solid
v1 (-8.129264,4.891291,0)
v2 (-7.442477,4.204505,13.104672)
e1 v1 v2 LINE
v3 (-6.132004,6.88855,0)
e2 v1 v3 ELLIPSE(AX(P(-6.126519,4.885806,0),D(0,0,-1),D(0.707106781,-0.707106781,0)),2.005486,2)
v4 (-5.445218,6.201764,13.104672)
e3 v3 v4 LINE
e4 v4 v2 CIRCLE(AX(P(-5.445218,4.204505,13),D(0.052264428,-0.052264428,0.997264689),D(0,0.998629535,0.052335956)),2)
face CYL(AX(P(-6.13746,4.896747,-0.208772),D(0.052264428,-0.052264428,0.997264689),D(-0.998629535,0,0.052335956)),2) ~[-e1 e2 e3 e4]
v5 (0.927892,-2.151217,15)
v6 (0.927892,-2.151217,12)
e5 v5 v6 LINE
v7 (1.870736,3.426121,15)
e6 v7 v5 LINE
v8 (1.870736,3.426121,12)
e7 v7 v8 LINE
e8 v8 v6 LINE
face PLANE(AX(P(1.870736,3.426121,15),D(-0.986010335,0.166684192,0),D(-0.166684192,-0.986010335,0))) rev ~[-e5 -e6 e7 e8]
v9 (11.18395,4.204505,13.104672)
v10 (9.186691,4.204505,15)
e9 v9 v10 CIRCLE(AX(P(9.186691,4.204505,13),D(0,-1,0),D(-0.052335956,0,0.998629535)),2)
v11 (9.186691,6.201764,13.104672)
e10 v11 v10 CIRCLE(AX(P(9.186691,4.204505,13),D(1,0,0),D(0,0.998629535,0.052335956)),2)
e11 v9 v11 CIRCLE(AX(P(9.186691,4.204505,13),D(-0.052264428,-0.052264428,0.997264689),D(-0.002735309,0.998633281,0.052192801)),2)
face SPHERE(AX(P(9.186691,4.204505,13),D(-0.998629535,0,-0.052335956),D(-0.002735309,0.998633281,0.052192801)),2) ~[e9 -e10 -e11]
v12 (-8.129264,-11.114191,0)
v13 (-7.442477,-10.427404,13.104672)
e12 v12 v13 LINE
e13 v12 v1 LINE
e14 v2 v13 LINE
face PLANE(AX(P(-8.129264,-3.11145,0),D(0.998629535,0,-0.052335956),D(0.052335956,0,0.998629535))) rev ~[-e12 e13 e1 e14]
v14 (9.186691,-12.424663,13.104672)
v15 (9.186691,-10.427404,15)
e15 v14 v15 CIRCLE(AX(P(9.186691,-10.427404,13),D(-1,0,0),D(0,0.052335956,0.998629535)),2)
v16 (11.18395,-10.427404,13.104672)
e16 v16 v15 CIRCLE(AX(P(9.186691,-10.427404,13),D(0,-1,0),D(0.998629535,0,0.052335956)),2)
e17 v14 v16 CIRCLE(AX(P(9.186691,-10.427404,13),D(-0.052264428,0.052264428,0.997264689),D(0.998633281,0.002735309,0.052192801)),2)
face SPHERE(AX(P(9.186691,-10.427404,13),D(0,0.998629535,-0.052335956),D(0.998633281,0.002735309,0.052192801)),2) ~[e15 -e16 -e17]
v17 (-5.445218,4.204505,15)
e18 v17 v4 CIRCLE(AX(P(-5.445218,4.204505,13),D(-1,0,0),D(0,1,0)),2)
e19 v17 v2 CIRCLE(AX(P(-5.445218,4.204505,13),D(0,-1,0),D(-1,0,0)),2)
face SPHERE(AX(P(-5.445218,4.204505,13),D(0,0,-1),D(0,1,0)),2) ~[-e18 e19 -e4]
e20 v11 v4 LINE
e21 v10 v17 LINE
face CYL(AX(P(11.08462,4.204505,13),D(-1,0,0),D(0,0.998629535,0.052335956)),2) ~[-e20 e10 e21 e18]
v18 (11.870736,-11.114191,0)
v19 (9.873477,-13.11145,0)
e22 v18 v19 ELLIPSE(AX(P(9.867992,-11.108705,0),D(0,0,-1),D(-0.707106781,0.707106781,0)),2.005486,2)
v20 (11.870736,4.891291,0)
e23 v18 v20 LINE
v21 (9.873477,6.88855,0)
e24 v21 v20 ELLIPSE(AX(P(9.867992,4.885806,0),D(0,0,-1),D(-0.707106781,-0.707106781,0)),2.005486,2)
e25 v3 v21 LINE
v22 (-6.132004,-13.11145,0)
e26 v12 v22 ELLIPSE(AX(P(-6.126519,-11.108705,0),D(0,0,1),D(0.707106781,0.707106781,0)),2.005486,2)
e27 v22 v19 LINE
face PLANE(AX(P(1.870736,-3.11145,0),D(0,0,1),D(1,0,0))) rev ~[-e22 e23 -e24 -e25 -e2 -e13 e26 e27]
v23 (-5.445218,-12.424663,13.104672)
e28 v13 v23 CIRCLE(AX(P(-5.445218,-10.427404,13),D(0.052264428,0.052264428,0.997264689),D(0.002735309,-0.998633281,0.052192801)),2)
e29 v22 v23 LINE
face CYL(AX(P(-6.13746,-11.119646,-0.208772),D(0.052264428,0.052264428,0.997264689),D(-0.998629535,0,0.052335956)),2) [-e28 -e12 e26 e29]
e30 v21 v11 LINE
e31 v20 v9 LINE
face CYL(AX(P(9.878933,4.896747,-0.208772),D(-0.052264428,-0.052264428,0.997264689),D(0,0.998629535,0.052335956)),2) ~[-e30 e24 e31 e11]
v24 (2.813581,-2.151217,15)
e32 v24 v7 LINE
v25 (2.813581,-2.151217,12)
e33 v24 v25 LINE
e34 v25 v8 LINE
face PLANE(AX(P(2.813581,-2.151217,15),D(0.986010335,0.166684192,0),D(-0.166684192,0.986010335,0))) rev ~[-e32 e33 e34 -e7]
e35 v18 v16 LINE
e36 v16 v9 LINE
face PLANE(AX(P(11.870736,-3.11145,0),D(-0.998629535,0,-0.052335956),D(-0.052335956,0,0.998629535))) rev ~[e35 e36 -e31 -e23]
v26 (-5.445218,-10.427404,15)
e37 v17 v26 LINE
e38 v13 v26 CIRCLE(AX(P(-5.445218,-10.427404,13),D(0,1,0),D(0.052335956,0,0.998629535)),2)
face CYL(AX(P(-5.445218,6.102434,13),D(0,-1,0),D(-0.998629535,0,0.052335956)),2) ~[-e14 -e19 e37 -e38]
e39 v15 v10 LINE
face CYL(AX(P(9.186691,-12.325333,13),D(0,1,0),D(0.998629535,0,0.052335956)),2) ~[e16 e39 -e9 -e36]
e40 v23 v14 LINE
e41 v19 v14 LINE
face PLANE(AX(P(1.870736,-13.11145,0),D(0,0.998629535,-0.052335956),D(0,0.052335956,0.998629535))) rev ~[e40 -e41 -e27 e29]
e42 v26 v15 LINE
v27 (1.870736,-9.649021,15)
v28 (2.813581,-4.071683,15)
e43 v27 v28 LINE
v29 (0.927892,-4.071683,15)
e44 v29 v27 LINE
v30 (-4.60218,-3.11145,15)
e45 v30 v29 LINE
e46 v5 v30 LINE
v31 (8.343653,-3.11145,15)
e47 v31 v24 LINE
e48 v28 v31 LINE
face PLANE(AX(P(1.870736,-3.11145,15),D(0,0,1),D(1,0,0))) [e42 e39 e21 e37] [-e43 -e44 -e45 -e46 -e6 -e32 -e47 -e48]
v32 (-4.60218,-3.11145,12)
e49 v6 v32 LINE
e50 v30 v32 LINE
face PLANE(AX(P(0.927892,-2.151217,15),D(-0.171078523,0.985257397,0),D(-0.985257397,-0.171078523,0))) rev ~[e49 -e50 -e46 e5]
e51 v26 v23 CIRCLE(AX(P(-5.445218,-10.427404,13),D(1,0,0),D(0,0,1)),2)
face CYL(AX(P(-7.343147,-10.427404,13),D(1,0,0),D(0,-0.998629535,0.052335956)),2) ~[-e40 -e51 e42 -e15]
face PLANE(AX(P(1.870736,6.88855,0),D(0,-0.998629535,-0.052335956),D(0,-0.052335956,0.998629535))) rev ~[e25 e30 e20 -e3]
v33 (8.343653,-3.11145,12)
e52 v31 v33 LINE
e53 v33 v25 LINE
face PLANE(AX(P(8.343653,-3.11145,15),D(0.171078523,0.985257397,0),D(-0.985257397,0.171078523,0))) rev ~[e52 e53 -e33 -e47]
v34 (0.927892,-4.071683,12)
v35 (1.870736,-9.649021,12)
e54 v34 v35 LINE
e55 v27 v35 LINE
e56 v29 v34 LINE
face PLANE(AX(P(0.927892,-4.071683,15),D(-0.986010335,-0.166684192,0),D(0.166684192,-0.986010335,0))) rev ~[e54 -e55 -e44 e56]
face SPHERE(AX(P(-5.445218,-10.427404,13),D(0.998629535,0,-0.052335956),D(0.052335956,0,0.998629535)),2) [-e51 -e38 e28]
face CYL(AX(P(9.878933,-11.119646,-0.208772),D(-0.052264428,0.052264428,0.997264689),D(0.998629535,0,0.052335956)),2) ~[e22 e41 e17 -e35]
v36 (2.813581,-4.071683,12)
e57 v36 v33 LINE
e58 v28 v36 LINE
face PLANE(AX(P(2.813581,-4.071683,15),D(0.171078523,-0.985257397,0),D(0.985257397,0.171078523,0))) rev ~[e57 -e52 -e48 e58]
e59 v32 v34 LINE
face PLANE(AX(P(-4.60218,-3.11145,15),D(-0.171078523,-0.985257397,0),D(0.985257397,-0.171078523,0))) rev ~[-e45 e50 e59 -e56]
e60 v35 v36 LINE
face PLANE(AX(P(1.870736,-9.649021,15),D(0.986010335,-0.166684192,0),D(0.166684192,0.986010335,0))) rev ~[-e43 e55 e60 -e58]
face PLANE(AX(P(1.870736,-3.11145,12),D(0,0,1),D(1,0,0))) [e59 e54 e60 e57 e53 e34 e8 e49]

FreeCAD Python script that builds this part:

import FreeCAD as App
import Part
import Sketcher
from FreeCAD import Vector


def edges_at(feature, points):
    """Names of the edges that pass closest to the given points."""
    edges = feature.Shape.Edges
    near = lambda p: min(range(len(edges)), key=lambda i: edges[i].distToShape(Part.Vertex(*p))[0])
    return sorted({f"Edge{near(p) + 1}" for p in points})

doc = App.newDocument("Part")
body = doc.addObject("PartDesign::Body", "Body")

# Sketch on XY plane
sketch1 = body.newObject("Sketcher::SketchObject", "Sketch")
sketch1.AttachmentSupport = (doc.getObject("XY_Plane"), [""])
sketch1.MapMode = "FlatFace"
sketch1.addGeometry(Part.LineSegment(Vector(-8, 7, 0), Vector(-8, -13, 0)), False)
sketch1.addGeometry(Part.LineSegment(Vector(-8, -13, 0), Vector(12, -13, 0)), False)
sketch1.addGeometry(Part.LineSegment(Vector(12, -13, 0), Vector(12, 7, 0)), False)
sketch1.addGeometry(Part.LineSegment(Vector(12, 7, 0), Vector(-8, 7, 0)), False)
sketch1.addConstraint(Sketcher.Constraint("Coincident", 0, 2, 1, 1))
sketch1.addConstraint(Sketcher.Constraint("Coincident", 1, 2, 2, 1))
sketch1.addConstraint(Sketcher.Constraint("Coincident", 2, 2, 3, 1))
sketch1.addConstraint(Sketcher.Constraint("Coincident", 3, 2, 0, 1))
sketch1.addConstraint(Sketcher.Constraint("Vertical", 0))
sketch1.addConstraint(Sketcher.Constraint("Horizontal", 1))
sketch1.addConstraint(Sketcher.Constraint("Vertical", 2))
sketch1.addConstraint(Sketcher.Constraint("Horizontal", 3))
sketch1.addConstraint(Sketcher.Constraint("Equal", 3, 0))
sketch1.addConstraint(Sketcher.Constraint("DistanceX", 1, 1, 1, 2, 20.0))
sketch1.addConstraint(Sketcher.Constraint("DistanceY", 0, 2, -1, 1, 13.11145))
sketch1.addConstraint(Sketcher.Constraint("DistanceX", 0, 2, -1, 1, 8.129264))
pad1 = body.newObject("PartDesign::Pad", "Pad")
pad1.Profile = sketch1
pad1.Length = 15
pad1.TaperAngle = -3
doc.recompute()

fillet = body.newObject("PartDesign::Fillet", "Fillet")
fillet.Base = (pad1, edges_at(pad1, [
    (-7.736, 6.495, 7.5),
    (1.871, 6.102, 15),
    (11.478, 6.495, 7.5),
    (11.085, -3.111, 15),
    (11.478, -12.718, 7.5),
    (1.871, -12.325, 15),
    (-7.343, -3.111, 15),
    (-7.736, -12.718, 7.5),
]))
fillet.Radius = 2

# Sketch on XY plane
sketch2 = body.newObject("Sketcher::SketchObject", "Sketch001")
sketch2.AttachmentSupport = (doc.getObject("XY_Plane"), [""])
sketch2.MapMode = "FlatFace"
sketch2.AttachmentOffset = App.Placement(Vector(0, 0, 15), App.Rotation())
sketch2.addGeometry(Part.LineSegment(Vector(3, -2, 0), Vector(2, 3, 0)), False)
sketch2.addGeometry(Part.LineSegment(Vector(2, 3, 0), Vector(1, -2, 0)), False)
sketch2.addGeometry(Part.LineSegment(Vector(1, -2, 0), Vector(-5, -3, 0)), False)
sketch2.addGeometry(Part.LineSegment(Vector(-5, -3, 0), Vector(1, -4, 0)), False)
sketch2.addGeometry(Part.LineSegment(Vector(1, -4, 0), Vector(2, -10, 0)), False)
sketch2.addGeometry(Part.LineSegment(Vector(2, -10, 0), Vector(3, -4, 0)), False)
sketch2.addGeometry(Part.LineSegment(Vector(3, -4, 0), Vector(8, -3, 0)), False)
sketch2.addGeometry(Part.LineSegment(Vector(8, -3, 0), Vector(3, -2, 0)), False)
sketch2.addConstraint(Sketcher.Constraint("Coincident", 0, 2, 1, 1))
sketch2.addConstraint(Sketcher.Constraint("Coincident", 1, 2, 2, 1))
sketch2.addConstraint(Sketcher.Constraint("Coincident", 2, 2, 3, 1))
sketch2.addConstraint(Sketcher.Constraint("Coincident", 3, 2, 4, 1))
sketch2.addConstraint(Sketcher.Constraint("Coincident", 4, 2, 5, 1))
sketch2.addConstraint(Sketcher.Constraint("Coincident", 5, 2, 6, 1))
sketch2.addConstraint(Sketcher.Constraint("Coincident", 6, 2, 7, 1))
sketch2.addConstraint(Sketcher.Constraint("Coincident", 7, 2, 0, 1))
sketch2.addConstraint(Sketcher.Constraint("Parallel", 0, 4))
sketch2.addConstraint(Sketcher.Constraint("Parallel", 1, 5))
sketch2.addConstraint(Sketcher.Constraint("Parallel", 2, 6))
sketch2.addConstraint(Sketcher.Constraint("Parallel", 3, 7))
sketch2.addConstraint(Sketcher.Constraint("Horizontal", 3, 2, 5, 2))
sketch2.addConstraint(Sketcher.Constraint("Horizontal", 2, 2, 6, 2))
sketch2.addConstraint(Sketcher.Constraint("Horizontal", 1, 2, 7, 2))
sketch2.addConstraint(Sketcher.Constraint("Vertical", 1, 2, 3, 2))
sketch2.addConstraint(Sketcher.Constraint("Vertical", 0, 2, 4, 2))
sketch2.addConstraint(Sketcher.Constraint("Vertical", 5, 2, 7, 2))
sketch2.addConstraint(Sketcher.Constraint("Distance", 0, 5.65647))
sketch2.addConstraint(Sketcher.Constraint("Distance", 2, 5.61282))
sketch2.addConstraint(Sketcher.Constraint("DistanceY", -1, 1, 0, 2, 3.426121))
sketch2.addConstraint(Sketcher.Constraint("DistanceX", 2, 2, -1, 1, 4.60218))
sketch2.addConstraint(Sketcher.Constraint("DistanceY", 2, 2, -1, 1, 3.11145))
sketch2.addConstraint(Sketcher.Constraint("DistanceX", -1, 1, 5, 2, 2.813581))
pocket1 = body.newObject("PartDesign::Pocket", "Pocket")
pocket1.Profile = sketch2
pocket1.Length = 3

doc.recompute()
